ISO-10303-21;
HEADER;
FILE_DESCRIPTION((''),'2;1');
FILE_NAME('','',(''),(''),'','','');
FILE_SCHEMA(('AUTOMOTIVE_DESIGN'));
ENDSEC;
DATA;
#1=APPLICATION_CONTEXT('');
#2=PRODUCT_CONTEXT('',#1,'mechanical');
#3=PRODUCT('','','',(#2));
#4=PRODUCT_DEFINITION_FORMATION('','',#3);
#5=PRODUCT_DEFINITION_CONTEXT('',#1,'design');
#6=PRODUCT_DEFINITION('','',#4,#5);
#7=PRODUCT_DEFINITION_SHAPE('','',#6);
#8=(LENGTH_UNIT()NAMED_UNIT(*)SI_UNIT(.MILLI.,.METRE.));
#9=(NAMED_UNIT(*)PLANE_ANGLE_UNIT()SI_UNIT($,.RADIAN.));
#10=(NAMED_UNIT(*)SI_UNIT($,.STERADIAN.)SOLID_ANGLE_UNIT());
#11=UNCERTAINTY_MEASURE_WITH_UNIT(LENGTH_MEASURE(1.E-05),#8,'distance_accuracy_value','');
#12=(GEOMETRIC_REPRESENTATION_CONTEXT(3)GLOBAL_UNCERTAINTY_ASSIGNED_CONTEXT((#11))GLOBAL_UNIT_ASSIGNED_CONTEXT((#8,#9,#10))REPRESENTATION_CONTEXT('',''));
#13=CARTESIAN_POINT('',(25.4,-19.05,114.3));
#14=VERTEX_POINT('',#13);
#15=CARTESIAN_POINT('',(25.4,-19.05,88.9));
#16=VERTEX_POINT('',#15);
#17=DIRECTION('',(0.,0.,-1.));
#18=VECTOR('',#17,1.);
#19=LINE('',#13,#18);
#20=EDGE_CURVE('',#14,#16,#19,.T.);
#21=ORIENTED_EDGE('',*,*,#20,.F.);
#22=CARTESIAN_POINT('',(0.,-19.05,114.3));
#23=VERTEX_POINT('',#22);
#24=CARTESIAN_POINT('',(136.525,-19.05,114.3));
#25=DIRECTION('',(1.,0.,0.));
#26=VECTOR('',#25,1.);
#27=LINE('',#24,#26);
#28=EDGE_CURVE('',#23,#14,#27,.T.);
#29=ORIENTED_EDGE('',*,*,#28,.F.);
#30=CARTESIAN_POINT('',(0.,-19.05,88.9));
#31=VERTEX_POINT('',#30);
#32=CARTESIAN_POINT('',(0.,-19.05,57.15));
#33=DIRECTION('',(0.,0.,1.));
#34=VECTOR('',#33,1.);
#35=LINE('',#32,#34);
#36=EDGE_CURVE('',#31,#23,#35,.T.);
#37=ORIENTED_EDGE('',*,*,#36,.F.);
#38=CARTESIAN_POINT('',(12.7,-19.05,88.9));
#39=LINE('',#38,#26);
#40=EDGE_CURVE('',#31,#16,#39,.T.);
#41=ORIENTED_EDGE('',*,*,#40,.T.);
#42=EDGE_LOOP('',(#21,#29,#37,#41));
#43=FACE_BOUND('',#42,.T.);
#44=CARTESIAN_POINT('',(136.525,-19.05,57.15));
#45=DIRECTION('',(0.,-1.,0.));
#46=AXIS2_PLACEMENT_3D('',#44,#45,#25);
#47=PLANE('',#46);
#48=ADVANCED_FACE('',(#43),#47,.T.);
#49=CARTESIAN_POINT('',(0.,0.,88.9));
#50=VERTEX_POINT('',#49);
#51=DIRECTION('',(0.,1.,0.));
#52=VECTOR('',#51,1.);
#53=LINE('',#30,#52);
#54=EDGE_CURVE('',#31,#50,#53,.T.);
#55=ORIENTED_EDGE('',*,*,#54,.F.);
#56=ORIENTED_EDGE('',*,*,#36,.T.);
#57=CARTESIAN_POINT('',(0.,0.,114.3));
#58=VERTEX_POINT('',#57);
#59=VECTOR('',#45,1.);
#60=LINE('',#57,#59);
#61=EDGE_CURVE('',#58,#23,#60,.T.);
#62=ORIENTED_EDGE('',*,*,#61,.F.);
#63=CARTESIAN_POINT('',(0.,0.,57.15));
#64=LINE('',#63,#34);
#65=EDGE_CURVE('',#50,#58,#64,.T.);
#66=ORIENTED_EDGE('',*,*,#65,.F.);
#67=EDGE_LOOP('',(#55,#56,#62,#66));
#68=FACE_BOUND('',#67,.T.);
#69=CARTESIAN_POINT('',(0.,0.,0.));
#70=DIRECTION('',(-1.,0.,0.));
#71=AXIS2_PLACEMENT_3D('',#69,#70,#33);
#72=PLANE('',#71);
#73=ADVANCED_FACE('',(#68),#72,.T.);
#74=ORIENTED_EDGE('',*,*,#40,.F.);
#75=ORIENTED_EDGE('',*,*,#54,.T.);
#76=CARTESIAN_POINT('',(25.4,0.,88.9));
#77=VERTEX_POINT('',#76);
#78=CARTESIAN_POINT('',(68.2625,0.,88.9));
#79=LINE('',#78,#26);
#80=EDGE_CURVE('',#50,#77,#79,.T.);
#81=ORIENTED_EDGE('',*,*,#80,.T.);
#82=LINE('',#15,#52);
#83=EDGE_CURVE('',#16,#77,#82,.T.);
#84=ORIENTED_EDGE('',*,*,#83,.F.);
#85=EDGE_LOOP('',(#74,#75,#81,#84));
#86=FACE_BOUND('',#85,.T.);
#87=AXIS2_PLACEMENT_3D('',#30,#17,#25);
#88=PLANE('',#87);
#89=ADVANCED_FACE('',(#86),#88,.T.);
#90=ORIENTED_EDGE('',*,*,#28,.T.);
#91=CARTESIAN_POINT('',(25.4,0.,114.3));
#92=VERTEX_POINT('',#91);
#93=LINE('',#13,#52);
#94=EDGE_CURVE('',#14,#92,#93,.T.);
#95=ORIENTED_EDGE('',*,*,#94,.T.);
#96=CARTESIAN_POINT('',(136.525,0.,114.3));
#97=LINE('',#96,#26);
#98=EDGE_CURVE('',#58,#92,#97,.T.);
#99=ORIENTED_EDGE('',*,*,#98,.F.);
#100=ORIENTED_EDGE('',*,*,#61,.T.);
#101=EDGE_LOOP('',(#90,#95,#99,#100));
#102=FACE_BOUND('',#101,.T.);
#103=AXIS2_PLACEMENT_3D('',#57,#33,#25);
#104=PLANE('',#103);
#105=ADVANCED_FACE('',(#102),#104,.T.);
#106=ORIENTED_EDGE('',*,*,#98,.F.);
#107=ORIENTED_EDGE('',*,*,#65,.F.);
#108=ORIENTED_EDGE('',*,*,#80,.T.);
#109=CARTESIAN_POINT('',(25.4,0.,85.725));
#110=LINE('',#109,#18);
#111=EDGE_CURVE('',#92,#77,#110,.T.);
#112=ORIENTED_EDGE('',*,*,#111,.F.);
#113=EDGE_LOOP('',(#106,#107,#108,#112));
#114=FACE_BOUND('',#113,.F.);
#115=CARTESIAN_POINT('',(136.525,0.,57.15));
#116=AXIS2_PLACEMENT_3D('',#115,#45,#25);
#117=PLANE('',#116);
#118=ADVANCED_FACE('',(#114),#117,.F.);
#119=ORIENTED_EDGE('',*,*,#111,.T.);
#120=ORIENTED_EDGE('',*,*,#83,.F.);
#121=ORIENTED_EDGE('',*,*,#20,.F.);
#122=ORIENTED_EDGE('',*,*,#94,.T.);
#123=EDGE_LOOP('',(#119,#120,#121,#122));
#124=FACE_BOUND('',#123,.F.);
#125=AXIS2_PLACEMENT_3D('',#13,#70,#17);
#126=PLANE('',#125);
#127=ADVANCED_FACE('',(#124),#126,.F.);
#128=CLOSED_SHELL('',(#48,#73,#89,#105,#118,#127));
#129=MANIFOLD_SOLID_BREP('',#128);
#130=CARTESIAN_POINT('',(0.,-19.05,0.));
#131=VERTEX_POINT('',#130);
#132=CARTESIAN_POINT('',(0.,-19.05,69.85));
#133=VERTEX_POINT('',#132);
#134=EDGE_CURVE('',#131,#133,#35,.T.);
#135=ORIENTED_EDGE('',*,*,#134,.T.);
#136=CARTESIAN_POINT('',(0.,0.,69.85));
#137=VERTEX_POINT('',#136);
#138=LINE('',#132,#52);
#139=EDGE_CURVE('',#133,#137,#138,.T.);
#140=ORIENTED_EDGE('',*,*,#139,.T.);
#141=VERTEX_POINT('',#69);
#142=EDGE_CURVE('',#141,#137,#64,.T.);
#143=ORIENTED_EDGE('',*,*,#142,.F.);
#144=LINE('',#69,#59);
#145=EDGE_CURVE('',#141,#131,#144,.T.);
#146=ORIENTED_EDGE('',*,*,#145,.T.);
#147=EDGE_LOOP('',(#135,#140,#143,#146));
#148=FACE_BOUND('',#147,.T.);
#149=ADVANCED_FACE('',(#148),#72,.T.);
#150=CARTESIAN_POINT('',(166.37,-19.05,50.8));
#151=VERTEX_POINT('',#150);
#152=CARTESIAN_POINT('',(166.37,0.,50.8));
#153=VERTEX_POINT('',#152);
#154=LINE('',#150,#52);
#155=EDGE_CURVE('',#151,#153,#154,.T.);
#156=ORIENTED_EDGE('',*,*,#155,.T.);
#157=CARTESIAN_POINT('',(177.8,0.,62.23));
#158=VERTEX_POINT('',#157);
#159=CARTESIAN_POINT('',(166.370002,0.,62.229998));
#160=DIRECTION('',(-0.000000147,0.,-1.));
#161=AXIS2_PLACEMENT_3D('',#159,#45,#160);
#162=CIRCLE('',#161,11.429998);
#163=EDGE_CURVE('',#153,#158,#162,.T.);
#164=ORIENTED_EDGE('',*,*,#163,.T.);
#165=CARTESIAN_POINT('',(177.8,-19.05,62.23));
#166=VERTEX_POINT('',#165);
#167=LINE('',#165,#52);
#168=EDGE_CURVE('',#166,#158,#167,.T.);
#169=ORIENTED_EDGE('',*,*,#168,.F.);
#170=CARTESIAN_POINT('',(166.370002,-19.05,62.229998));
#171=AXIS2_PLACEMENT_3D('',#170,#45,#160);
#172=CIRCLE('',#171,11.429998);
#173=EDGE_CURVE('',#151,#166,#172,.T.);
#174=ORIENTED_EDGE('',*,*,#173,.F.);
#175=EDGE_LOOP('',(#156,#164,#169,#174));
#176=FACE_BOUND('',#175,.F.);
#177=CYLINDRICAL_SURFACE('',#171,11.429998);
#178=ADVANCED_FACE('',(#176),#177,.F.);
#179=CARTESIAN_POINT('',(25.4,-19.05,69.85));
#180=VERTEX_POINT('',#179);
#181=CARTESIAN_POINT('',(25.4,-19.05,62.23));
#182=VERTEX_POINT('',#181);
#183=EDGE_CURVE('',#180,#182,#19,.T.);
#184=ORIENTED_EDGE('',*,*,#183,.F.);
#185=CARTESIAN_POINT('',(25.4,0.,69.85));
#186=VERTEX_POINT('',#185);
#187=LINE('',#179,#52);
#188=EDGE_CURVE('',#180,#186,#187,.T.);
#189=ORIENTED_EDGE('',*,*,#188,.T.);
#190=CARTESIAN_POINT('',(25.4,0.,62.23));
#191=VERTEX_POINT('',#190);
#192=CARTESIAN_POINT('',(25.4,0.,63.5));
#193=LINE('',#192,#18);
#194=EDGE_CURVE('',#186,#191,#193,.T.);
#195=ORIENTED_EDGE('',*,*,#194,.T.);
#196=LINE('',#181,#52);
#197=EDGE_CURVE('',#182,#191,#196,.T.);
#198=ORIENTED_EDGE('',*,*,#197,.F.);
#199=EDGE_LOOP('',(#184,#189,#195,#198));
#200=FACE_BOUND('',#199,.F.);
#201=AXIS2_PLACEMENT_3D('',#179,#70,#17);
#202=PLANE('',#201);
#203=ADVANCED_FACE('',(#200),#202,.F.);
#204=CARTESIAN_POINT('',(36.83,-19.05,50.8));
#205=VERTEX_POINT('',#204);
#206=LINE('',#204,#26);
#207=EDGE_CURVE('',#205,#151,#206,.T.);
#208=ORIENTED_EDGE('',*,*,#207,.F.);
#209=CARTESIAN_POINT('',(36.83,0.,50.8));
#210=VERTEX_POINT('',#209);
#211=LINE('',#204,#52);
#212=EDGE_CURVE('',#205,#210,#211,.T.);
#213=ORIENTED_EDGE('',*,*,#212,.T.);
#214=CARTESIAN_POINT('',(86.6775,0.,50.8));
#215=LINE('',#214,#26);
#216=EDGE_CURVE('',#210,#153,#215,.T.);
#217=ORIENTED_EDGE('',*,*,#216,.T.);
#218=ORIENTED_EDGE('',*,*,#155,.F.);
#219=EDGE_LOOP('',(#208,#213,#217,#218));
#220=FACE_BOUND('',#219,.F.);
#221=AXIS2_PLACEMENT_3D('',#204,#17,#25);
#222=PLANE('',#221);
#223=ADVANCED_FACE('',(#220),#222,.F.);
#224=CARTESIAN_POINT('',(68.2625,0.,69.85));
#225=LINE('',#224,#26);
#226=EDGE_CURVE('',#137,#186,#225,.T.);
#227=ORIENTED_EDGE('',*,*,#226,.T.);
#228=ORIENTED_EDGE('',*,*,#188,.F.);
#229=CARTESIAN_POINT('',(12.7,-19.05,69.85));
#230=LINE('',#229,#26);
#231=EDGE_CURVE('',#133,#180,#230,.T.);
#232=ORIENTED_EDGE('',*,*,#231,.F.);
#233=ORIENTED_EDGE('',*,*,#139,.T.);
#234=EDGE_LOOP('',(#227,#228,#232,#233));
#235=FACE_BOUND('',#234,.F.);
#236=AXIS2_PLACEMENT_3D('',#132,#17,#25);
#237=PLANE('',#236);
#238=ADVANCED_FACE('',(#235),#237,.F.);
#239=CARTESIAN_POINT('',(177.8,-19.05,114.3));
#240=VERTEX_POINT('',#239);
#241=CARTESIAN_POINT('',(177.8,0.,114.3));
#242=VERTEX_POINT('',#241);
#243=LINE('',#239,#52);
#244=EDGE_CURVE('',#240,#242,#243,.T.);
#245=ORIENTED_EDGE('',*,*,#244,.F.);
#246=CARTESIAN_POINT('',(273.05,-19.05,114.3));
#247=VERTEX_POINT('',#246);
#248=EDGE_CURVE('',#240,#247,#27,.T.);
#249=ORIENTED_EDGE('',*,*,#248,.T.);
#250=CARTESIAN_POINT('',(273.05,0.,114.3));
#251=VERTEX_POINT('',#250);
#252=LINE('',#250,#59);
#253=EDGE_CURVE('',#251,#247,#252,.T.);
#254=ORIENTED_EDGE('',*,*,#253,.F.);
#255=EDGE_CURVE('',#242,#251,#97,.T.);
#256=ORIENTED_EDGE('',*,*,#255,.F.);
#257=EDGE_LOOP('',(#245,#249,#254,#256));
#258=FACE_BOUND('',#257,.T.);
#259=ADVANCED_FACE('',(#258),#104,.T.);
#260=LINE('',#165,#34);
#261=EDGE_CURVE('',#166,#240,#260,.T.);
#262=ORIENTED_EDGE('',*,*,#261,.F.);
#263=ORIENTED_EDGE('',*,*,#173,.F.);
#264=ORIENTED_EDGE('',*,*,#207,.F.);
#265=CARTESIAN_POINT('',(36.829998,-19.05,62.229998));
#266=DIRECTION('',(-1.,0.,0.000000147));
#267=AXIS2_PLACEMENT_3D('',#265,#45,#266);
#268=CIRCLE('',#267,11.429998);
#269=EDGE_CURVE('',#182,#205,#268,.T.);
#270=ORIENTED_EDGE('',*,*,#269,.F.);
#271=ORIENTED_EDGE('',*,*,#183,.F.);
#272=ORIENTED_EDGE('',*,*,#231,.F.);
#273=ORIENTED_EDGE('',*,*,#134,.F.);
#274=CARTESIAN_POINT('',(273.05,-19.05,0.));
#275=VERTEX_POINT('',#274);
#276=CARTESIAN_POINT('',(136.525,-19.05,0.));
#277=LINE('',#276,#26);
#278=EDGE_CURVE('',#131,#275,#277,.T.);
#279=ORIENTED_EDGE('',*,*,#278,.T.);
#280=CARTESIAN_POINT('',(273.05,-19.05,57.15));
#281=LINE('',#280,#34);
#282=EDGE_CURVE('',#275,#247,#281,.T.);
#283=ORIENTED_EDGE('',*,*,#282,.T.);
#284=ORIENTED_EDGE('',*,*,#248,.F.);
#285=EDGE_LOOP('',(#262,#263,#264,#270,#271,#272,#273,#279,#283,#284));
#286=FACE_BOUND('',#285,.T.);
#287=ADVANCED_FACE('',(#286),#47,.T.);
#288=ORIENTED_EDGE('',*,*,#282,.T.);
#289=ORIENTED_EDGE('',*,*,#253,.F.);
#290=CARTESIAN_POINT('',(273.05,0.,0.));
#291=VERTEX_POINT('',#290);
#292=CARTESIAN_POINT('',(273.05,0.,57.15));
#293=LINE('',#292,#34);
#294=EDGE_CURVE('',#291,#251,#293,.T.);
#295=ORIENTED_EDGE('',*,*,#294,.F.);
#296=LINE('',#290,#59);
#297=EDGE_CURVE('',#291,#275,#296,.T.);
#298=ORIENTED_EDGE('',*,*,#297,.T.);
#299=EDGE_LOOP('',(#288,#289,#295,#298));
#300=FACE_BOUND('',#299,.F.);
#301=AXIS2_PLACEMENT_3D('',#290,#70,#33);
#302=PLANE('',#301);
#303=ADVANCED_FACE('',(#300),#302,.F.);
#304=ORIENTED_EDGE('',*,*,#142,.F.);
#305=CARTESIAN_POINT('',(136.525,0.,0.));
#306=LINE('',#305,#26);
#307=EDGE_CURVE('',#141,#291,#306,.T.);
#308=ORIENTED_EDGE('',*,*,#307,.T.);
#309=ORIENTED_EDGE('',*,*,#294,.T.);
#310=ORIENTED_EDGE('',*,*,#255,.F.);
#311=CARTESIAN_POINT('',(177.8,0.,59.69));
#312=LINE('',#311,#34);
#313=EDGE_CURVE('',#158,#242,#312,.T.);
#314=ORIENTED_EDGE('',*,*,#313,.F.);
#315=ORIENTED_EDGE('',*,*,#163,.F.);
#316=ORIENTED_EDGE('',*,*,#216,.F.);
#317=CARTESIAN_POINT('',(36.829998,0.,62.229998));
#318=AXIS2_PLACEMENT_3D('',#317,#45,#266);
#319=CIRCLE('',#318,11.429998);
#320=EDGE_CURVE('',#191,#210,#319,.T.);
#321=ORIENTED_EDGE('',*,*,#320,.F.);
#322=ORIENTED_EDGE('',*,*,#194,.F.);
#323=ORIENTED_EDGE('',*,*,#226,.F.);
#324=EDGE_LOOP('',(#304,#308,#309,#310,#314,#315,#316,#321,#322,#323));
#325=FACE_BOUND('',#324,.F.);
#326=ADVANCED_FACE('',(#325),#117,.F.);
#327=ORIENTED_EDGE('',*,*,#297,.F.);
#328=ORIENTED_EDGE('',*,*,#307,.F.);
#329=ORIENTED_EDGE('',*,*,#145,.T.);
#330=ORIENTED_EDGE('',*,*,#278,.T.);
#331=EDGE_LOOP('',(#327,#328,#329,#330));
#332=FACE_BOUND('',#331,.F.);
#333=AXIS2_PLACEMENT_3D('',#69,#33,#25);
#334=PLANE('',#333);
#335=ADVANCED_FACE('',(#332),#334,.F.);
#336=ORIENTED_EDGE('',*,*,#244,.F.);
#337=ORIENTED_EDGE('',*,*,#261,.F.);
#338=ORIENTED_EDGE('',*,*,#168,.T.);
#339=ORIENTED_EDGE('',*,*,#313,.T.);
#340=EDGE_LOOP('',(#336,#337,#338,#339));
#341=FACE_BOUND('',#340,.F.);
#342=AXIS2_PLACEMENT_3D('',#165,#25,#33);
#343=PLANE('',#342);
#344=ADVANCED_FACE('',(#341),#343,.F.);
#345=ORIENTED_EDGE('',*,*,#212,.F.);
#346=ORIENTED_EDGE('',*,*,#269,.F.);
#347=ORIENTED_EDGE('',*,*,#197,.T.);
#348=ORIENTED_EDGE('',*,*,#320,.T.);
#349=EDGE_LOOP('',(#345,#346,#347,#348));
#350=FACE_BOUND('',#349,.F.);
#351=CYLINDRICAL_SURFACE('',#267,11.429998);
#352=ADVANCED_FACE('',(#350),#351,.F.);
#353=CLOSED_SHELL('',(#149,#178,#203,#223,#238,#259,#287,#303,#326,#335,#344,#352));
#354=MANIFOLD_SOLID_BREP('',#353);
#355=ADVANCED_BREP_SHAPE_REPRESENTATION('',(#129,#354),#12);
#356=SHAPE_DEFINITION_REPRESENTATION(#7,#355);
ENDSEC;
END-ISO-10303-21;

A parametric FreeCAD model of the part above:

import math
import FreeCAD as App
import Part
import Sketcher

V = App.Vector
Q = App.Units.Quantity

doc = App.newDocument("Part")
body = doc.addObject("PartDesign::Body", "Body")
body.AllowCompound = True

# Sketch on XZ plane
sketch1 = doc.addObject("Sketcher::SketchObject", "Sketch")
body.addObject(sketch1)
sketch1.AttachmentSupport = (doc.XZ_Plane, [""])
sketch1.MapMode = "FlatFace"
sketch1.addGeometry([
    Part.LineSegment(V(0, 114, 0), V(0, 0, 0)),
    Part.LineSegment(V(0, 0, 0), V(273, 0, 0)),
    Part.LineSegment(V(273, 0, 0), V(273, 114, 0)),
    Part.LineSegment(V(273, 114, 0), V(0, 114, 0)),
], False)
sketch1.addConstraint([
    Sketcher.Constraint("Coincident", 0, 2, 1, 1),
    Sketcher.Constraint("Coincident", 1, 2, 2, 1),
    Sketcher.Constraint("Coincident", 2, 2, 3, 1),
    Sketcher.Constraint("Coincident", 3, 2, 0, 1),
    Sketcher.Constraint("Vertical", 0),
    Sketcher.Constraint("Horizontal", 1),
    Sketcher.Constraint("Vertical", 2),
    Sketcher.Constraint("Horizontal", 3),
    Sketcher.Constraint("Coincident", 0, 2, -1, 1),
    Sketcher.Constraint("DistanceY", 0, 2, 0, 1, Q("4.5 in")),
    Sketcher.Constraint("DistanceX", 1, 1, 1, 2, Q("10.75 in")),
])
pad1 = doc.addObject("PartDesign::Pad", "Pad")
body.addObject(pad1)
pad1.Profile = sketch1
pad1.Length = Q("0.75 in")

# Sketch on XZ plane
sketch2 = doc.addObject("Sketcher::SketchObject", "Sketch001")
body.addObject(sketch2)
sketch2.AttachmentSupport = (doc.XZ_Plane, [""])
sketch2.MapMode = "FlatFace"
sketch2.AttachmentOffset = App.Placement(V(0, 0, 0.75 * 25.4), App.Rotation())
sketch2.addGeometry([
    Part.LineSegment(V(0, 89, 0), V(0, 70, 0)),  # 0
    Part.LineSegment(V(0, 70, 0), V(25, 70, 0)),  # 1
    Part.LineSegment(V(25, 70, 0), V(25, 62, 0)),  # 2
    Part.ArcOfCircle(Part.Circle(V(37, 62, 0), V(0, 0, 1), 11), math.radians(180), math.radians(270)),  # 3
    Part.LineSegment(V(37, 51, 0), V(166, 51, 0)),  # 4
    Part.ArcOfCircle(Part.Circle(V(166, 62, 0), V(0, 0, 1), 11), math.radians(-90), math.radians(0)),  # 5
    Part.LineSegment(V(178, 62, 0), V(178, 114, 0)),  # 6
    Part.LineSegment(V(178, 114, 0), V(25, 114, 0)),  # 7
    Part.LineSegment(V(25, 114, 0), V(25, 89, 0)),  # 8
    Part.LineSegment(V(25, 89, 0), V(0, 89, 0)),  # 9
], False)
sketch2.addConstraint([
    Sketcher.Constraint("Coincident", 0, 2, 1, 1),
    Sketcher.Constraint("Coincident", 1, 2, 2, 1),
    Sketcher.Constraint("Tangent", 2, 2, 3, 1),
    Sketcher.Constraint("Tangent", 3, 2, 4, 1),
    Sketcher.Constraint("Tangent", 4, 2, 5, 1),
    Sketcher.Constraint("Tangent", 5, 2, 6, 1),
    Sketcher.Constraint("Coincident", 6, 2, 7, 1),
    Sketcher.Constraint("Coincident", 7, 2, 8, 1),
    Sketcher.Constraint("Coincident", 8, 2, 9, 1),
    Sketcher.Constraint("Coincident", 9, 2, 0, 1),
    Sketcher.Constraint("Vertical", 0),
    Sketcher.Constraint("Horizontal", 1),
    Sketcher.Constraint("Vertical", 2),
    Sketcher.Constraint("Horizontal", 4),
    Sketcher.Constraint("Vertical", 6),
    Sketcher.Constraint("Horizontal", 7),
    Sketcher.Constraint("Vertical", 8),
    Sketcher.Constraint("Horizontal", 9),
    Sketcher.Constraint("Equal", 3, 5),
    Sketcher.Constraint("PointOnObject", 0, 2, -2),
    Sketcher.Constraint("Vertical", 2, 2, 7, 2),
    Sketcher.Constraint("Equal", 9, 8),
    Sketcher.Constraint("DistanceX", 1, 1, 1, 2, Q("1 in")),
    Sketcher.Constraint("DistanceX", 7, 2, 7, 1, Q("6 in")),
    Sketcher.Constraint("Radius", 3, Q("0.4499999 in")),
    Sketcher.Constraint("DistanceY", 2, 2, 2, 1, Q("0.3 in")),
    Sketcher.Constraint("DistanceY", -1, 1, 3, 2, Q("2 in")),
    Sketcher.Constraint("DistanceY", 0, 2, 0, 1, Q("0.75 in")),
])
pocket1 = doc.addObject("PartDesign::Pocket", "Pocket")
body.addObject(pocket1)
pocket1.Profile = sketch2
pocket1.Length = Q("1 in")

doc.recompute()
